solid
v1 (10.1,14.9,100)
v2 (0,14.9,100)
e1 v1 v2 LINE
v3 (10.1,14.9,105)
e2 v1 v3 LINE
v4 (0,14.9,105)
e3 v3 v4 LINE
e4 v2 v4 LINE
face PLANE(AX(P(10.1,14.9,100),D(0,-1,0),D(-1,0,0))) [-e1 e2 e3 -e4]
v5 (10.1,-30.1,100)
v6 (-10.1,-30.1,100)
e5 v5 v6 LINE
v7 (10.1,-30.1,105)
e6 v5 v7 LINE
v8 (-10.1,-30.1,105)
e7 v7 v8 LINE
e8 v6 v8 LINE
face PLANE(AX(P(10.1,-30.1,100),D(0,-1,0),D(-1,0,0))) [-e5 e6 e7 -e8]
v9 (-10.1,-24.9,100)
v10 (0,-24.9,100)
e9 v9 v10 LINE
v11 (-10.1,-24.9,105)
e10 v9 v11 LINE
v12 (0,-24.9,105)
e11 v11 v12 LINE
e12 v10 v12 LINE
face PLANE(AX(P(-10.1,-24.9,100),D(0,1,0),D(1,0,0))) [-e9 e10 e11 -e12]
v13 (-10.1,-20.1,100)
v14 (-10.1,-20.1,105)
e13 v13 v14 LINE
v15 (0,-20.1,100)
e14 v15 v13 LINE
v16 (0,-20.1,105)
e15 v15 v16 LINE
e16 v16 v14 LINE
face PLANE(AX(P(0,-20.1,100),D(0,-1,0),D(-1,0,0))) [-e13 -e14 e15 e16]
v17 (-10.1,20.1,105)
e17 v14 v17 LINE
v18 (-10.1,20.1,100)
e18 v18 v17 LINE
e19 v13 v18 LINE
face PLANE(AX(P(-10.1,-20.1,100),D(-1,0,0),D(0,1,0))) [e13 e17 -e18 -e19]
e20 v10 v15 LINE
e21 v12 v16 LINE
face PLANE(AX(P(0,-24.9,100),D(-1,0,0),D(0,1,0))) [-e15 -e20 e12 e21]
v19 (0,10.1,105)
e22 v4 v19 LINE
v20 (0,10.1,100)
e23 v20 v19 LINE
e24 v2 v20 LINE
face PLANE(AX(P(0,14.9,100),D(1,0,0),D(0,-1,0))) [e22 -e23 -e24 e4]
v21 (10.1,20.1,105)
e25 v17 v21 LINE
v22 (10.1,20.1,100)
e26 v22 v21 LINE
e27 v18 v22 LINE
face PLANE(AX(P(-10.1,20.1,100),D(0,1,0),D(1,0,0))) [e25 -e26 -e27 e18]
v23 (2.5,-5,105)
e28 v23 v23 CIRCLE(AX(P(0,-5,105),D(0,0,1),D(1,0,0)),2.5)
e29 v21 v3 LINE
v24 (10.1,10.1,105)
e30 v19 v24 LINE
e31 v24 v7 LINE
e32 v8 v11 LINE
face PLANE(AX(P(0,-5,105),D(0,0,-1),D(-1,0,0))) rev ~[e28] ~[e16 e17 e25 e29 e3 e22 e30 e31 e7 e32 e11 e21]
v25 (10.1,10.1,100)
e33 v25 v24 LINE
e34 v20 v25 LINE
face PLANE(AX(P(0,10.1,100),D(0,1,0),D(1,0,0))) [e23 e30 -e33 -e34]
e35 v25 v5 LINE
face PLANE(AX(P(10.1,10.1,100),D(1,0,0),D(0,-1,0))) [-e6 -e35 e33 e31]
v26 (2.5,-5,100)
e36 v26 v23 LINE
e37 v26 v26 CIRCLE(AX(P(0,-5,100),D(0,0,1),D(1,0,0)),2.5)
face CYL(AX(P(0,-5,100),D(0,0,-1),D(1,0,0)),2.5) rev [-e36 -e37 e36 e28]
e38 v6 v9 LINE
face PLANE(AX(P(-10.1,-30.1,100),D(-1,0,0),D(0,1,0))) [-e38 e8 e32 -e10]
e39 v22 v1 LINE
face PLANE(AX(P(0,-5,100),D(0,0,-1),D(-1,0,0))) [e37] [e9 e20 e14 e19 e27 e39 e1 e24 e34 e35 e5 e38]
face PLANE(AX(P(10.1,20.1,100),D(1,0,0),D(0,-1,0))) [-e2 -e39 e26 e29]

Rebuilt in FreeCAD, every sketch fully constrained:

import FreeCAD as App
import Part
import Sketcher

doc = App.newDocument("Part")
body = doc.addObject("PartDesign::Body", "Body")

# Sketch on XY plane
sketch1 = body.newObject("Sketcher::SketchObject", "Sketch")
sketch1.AttachmentSupport = (doc.getObject("XY_Plane"), [""])
sketch1.MapMode = "FlatFace"
sketch1.AttachmentOffset = App.Placement(App.Vector(0, 0, 100), App.Rotation())
sketch1.addGeometry([
    Part.LineSegment(App.Vector(10.1, 20.1, 0), App.Vector(-10.1, 20.1, 0)),  # 0
    Part.LineSegment(App.Vector(-10.1, 20.1, 0), App.Vector(-10.1, -20.1, 0)),  # 1
    Part.LineSegment(App.Vector(-10.1, -20.1, 0), App.Vector(0, -20.1, 0)),  # 2
    Part.LineSegment(App.Vector(0, -20.1, 0), App.Vector(0, -24.9, 0)),  # 3
    Part.LineSegment(App.Vector(0, -24.9, 0), App.Vector(-10.1, -24.9, 0)),  # 4
    Part.LineSegment(App.Vector(-10.1, -24.9, 0), App.Vector(-10.1, -30.1, 0)),  # 5
    Part.LineSegment(App.Vector(-10.1, -30.1, 0), App.Vector(10.1, -30.1, 0)),  # 6
    Part.LineSegment(App.Vector(10.1, -30.1, 0), App.Vector(10.1, 10.1, 0)),  # 7
    Part.LineSegment(App.Vector(10.1, 10.1, 0), App.Vector(0, 10.1, 0)),  # 8
    Part.LineSegment(App.Vector(0, 10.1, 0), App.Vector(0, 14.9, 0)),  # 9
    Part.LineSegment(App.Vector(0, 14.9, 0), App.Vector(10.1, 14.9, 0)),  # 10
    Part.LineSegment(App.Vector(10.1, 14.9, 0), App.Vector(10.1, 20.1, 0)),  # 11
    Part.Circle(App.Vector(0, -5, 0), App.Vector(0, 0, 1), 2.5),  # 12
], False)
sketch1.addConstraint([
    Sketcher.Constraint("Coincident", 0, 2, 1, 1),
    Sketcher.Constraint("Coincident", 1, 2, 2, 1),
    Sketcher.Constraint("Coincident", 2, 2, 3, 1),
    Sketcher.Constraint("Coincident", 3, 2, 4, 1),
    Sketcher.Constraint("Coincident", 4, 2, 5, 1),
    Sketcher.Constraint("Coincident", 5, 2, 6, 1),
    Sketcher.Constraint("Coincident", 6, 2, 7, 1),
    Sketcher.Constraint("Coincident", 7, 2, 8, 1),
    Sketcher.Constraint("Coincident", 8, 2, 9, 1),
    Sketcher.Constraint("Coincident", 9, 2, 10, 1),
    Sketcher.Constraint("Coincident", 10, 2, 11, 1),
    Sketcher.Constraint("Coincident", 11, 2, 0, 1),
    Sketcher.Constraint("Horizontal", 0),
    Sketcher.Constraint("Vertical", 1),
    Sketcher.Constraint("Horizontal", 2),
    Sketcher.Constraint("Vertical", 3),
    Sketcher.Constraint("Horizontal", 4),
    Sketcher.Constraint("Vertical", 5),
    Sketcher.Constraint("Horizontal", 6),
    Sketcher.Constraint("Vertical", 7),
    Sketcher.Constraint("Horizontal", 8),
    Sketcher.Constraint("Vertical", 9),
    Sketcher.Constraint("Horizontal", 10),
    Sketcher.Constraint("Vertical", 11),
    Sketcher.Constraint("Symmetric", 1, 2, 11, 2, -1, 1),
    Sketcher.Constraint("PointOnObject", 12, 3, -2),
    Sketcher.Constraint("PointOnObject", 2, 2, -2),
    Sketcher.Constraint("PointOnObject", 8, 2, -2),
    Sketcher.Constraint("Vertical", 1, 2, 4, 2),
    Sketcher.Constraint("Vertical", 7, 2, 10, 2),
    Sketcher.Constraint("Equal", 1, 7),
    Sketcher.Constraint("Equal", 3, 9),
    Sketcher.Constraint("Diameter", 12, 5.0),
    Sketcher.Constraint("DistanceX", 0, 2, 0, 1, 20.2),
    Sketcher.Constraint("DistanceY", 1, 2, 1, 1, 40.2),
    Sketcher.Constraint("DistanceY", 3, 2, 3, 1, 4.8),
    Sketcher.Constraint("DistanceY", 5, 2, 5, 1, 5.2),
    Sketcher.Constraint("DistanceY", 12, 3, -1, 1, 5.0),
])
pad1 = body.newObject("PartDesign::Pad", "Pad")
pad1.Profile = sketch1
pad1.Length = 5

doc.recompute()
